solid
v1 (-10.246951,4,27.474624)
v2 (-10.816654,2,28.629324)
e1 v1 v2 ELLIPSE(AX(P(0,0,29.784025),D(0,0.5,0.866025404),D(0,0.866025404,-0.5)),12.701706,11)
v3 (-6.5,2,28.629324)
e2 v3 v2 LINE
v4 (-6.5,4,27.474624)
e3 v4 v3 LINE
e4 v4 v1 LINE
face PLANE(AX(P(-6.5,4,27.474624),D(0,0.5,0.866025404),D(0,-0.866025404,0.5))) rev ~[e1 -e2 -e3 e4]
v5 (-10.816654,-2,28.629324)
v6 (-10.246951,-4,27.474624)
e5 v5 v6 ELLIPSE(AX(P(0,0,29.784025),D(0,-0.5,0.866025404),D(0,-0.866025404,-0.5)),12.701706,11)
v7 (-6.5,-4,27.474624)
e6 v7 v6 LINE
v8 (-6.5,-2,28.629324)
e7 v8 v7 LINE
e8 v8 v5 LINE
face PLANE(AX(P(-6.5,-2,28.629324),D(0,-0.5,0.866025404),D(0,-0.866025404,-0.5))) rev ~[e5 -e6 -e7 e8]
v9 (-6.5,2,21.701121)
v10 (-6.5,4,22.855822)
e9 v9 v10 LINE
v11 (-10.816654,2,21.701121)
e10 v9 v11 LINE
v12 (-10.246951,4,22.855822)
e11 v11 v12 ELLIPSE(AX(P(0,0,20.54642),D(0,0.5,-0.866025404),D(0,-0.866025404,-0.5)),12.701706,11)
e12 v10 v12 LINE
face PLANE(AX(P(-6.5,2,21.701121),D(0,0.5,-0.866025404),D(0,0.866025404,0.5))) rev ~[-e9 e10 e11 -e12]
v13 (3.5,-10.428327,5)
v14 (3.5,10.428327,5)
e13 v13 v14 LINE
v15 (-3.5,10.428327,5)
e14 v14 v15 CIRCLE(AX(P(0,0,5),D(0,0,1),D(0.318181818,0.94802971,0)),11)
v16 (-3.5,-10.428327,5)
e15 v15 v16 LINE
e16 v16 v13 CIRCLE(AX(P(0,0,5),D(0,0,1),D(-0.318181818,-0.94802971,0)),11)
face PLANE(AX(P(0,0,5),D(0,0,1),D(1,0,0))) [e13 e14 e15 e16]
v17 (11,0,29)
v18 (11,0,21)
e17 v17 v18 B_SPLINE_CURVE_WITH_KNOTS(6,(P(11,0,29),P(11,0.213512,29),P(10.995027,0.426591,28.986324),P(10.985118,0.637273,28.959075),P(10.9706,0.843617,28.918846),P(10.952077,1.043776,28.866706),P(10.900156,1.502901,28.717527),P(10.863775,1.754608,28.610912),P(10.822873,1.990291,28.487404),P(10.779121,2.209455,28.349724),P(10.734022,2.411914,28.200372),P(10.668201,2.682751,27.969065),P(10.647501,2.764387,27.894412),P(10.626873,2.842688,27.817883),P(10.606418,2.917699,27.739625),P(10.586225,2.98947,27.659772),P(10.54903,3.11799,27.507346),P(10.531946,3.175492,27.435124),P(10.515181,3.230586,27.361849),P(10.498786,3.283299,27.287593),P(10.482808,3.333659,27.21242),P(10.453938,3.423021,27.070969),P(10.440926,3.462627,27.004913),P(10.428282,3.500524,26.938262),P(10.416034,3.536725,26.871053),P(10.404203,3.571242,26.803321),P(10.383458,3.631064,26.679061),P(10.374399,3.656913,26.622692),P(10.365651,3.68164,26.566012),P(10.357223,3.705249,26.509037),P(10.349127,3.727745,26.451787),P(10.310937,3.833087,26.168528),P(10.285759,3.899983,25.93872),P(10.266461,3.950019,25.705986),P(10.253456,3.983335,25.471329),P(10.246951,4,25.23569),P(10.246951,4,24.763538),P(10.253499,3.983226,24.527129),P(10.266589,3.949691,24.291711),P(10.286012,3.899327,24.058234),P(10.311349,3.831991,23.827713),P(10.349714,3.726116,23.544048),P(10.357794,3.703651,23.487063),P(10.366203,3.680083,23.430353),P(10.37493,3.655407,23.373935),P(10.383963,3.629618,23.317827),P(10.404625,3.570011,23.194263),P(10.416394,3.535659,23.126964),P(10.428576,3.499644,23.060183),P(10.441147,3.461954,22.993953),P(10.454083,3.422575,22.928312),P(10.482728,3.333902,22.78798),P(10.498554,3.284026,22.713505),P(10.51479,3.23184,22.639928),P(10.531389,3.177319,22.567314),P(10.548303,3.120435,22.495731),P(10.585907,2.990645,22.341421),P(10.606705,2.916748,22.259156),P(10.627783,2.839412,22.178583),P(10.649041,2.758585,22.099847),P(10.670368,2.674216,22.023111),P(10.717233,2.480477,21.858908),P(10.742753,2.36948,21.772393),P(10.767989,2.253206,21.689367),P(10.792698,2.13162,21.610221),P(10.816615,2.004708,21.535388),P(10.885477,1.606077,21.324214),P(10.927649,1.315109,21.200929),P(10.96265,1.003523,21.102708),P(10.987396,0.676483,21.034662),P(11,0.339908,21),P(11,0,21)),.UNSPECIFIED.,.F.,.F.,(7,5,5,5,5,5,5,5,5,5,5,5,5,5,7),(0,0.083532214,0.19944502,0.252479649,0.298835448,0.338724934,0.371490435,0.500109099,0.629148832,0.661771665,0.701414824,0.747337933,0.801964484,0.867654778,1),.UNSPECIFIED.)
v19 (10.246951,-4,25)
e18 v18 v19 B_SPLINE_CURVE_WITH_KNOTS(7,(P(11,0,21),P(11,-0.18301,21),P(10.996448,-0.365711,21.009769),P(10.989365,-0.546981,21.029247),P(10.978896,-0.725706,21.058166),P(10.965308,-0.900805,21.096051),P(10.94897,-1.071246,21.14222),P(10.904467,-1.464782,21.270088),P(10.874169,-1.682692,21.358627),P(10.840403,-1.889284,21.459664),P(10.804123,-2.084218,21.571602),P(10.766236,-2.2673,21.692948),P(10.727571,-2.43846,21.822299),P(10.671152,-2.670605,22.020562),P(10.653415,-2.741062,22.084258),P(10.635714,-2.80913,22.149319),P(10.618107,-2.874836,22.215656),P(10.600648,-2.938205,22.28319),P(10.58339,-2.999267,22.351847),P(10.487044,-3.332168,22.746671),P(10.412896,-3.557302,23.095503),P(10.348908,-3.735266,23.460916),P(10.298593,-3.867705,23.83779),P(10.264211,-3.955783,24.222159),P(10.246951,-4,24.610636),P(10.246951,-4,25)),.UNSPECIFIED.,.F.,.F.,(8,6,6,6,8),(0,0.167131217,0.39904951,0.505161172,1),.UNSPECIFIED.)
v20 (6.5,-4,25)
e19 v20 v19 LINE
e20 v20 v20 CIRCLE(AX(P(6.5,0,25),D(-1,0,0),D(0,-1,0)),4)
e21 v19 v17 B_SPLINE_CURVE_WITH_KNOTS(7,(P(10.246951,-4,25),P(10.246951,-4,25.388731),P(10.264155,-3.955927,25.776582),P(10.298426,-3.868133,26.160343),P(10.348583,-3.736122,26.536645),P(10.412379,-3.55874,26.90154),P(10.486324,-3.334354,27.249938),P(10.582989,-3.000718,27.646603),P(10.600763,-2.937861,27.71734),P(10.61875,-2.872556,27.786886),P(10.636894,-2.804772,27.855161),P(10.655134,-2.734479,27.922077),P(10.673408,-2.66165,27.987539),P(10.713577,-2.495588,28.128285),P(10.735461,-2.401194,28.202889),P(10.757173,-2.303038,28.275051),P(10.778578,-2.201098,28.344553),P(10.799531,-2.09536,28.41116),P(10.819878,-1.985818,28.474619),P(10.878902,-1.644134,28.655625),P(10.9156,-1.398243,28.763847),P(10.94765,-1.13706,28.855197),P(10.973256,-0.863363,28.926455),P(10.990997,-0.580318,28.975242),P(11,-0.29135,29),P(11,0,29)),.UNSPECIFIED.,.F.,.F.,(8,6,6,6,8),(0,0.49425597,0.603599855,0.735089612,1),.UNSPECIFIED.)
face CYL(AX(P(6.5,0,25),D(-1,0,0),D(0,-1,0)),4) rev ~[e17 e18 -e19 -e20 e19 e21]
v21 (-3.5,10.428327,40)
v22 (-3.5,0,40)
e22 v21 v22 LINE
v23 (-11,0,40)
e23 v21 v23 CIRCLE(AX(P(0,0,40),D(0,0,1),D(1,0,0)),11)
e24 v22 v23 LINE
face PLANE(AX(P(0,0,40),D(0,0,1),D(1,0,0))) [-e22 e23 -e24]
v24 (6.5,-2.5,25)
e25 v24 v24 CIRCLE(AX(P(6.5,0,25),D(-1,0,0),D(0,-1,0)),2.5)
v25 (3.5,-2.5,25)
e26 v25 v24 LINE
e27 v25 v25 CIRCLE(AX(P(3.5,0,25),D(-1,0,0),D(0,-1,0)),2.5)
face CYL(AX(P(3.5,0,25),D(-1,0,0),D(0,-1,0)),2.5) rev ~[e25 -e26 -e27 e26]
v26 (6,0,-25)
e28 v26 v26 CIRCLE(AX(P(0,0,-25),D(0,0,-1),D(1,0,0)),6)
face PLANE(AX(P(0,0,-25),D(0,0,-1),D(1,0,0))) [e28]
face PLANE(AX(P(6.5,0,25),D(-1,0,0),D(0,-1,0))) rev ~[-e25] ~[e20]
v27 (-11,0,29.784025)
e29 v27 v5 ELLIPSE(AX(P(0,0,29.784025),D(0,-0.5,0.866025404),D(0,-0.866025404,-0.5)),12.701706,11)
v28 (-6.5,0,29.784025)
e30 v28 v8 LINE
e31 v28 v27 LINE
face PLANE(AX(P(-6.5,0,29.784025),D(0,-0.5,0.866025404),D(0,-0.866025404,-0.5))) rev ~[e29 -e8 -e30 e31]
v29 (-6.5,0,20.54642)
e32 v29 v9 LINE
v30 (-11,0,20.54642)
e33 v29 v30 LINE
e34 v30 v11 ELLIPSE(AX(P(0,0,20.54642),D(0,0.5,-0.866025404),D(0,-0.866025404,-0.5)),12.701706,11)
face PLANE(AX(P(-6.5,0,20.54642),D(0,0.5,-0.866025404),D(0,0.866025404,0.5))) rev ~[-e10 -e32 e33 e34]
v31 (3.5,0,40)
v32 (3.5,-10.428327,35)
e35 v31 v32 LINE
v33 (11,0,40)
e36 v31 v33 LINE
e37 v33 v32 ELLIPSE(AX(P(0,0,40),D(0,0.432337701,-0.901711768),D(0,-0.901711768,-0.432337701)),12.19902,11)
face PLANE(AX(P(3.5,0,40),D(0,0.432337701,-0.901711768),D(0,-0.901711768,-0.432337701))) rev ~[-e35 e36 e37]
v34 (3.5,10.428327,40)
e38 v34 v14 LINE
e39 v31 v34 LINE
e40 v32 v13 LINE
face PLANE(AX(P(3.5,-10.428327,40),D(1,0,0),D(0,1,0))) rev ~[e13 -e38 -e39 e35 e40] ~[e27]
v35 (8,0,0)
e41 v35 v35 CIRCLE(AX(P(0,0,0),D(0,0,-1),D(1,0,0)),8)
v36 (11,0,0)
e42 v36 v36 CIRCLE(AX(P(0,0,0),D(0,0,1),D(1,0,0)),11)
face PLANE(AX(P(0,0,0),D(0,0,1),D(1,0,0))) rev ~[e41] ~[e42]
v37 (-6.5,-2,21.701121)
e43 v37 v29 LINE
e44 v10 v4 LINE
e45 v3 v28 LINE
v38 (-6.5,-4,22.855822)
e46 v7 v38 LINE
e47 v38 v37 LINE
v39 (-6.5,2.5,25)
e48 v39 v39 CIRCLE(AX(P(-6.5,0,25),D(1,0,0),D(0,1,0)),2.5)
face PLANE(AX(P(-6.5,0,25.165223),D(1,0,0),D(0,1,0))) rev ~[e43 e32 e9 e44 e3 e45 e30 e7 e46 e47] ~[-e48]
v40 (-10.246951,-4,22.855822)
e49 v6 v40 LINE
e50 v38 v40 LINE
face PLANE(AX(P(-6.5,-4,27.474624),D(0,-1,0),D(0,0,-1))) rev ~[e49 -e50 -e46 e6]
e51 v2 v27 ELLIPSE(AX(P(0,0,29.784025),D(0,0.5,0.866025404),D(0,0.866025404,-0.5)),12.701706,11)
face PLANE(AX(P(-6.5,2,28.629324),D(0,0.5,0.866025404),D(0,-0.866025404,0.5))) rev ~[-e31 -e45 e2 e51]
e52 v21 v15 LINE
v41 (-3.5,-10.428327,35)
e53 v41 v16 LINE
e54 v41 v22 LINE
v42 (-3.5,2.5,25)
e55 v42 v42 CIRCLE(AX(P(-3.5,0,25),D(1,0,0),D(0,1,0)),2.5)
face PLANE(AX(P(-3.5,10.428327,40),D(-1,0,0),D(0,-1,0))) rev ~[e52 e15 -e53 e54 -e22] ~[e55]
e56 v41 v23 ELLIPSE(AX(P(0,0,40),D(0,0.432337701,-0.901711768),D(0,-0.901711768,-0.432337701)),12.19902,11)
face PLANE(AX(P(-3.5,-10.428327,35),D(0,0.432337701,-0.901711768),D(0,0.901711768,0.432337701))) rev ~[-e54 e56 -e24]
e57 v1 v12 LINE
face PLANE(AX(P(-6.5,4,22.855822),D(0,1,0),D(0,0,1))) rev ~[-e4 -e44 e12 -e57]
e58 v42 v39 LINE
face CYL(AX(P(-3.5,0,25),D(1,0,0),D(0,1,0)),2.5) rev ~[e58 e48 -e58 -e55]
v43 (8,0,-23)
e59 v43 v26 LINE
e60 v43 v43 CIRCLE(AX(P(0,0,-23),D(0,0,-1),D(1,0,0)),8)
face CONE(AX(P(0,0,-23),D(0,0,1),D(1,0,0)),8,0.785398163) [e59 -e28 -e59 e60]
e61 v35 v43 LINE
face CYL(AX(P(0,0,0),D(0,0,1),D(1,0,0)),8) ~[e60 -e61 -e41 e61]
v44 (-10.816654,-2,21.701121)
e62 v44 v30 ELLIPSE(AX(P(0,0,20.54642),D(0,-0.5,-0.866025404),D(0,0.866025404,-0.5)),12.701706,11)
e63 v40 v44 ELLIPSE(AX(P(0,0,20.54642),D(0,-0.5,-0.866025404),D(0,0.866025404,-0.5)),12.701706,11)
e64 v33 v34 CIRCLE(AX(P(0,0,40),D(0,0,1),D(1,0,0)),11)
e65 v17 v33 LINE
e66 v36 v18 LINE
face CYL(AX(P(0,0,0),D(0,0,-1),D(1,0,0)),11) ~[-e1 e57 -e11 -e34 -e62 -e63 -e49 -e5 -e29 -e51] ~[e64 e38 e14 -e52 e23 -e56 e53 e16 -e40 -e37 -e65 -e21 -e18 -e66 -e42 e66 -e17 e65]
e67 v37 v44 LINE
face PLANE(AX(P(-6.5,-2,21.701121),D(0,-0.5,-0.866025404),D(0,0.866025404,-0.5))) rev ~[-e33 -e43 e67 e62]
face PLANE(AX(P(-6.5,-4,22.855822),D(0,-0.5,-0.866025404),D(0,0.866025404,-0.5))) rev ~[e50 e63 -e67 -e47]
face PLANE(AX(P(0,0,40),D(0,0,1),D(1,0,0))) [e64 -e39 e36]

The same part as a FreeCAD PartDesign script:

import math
import FreeCAD as App
import Part
import Sketcher

V = App.Vector
Q = App.Units.Quantity


def edges_at(feature, points):
    """Names of the edges that pass closest to the given points."""
    edges = feature.Shape.Edges
    near = lambda p: min(range(len(edges)), key=lambda i: edges[i].distToShape(Part.Vertex(*p))[0])
    return sorted({f"Edge{near(p) + 1}" for p in points})


def add_polygon(sketch, points):
    """Adds a closed chain of lines whose ends are joined by coincident constraints."""
    first, n = sketch.GeometryCount, len(points)
    for a, b in zip(points, points[1:] + points[:1]):
        sketch.addGeometry(Part.LineSegment(App.Vector(*a, 0), App.Vector(*b, 0)), False)
    for i in range(n):
        sketch.addConstraint(Sketcher.Constraint("Coincident", first + i, 2, first + (i + 1) % n, 1))

doc = App.newDocument("Part")
params = doc.addObject("Spreadsheet::Sheet", "Params")
for row, (alias, value) in enumerate([
    ("sketch1_diameter", "22 mm"),
    ("pad1_length", "40 mm"),
    ("sketch2_radius", "11 mm"),
    ("pocket1_length", "35 mm"),
    ("sketch3_height", "5 mm"),
    ("sketch4_height", "5 mm"),
    ("sketch5_diameter", "16 mm"),
    ("pad2_length", "25 mm"),
    ("sketch6_diameter", "5 mm"),
    ("sketch7_diameter", "5 mm"),
    ("chamfer_size", "2 mm"),
    ("sketch9_diameter", "8 mm"),
], start=1):
    params.set(f"A{row}", alias)
    params.set(f"B{row}", "=" + value)
    params.setAlias(f"B{row}", alias)

body = doc.addObject("PartDesign::Body", "Body")

# Sketch on XY plane
sketch1 = body.newObject("Sketcher::SketchObject", "Sketch")
sketch1.AttachmentSupport = (doc.getObject("XY_Plane"), [""])
sketch1.MapMode = "FlatFace"
sketch1.addGeometry(Part.Circle(V(0, 0, 0), V(0, 0, 1), 11), False)
sketch1.addConstraint(Sketcher.Constraint("Coincident", 0, 3, -1, 1))
sketch1.addConstraint(Sketcher.Constraint("Diameter", 0, Q("22 mm")))
sketch1.setExpression("Constraints[1]", "Params.sketch1_diameter")
pad1 = body.newObject("PartDesign::Pad", "Pad")
pad1.Profile = sketch1
pad1.setExpression("Length", "Params.pad1_length")

# Sketch on XY plane
sketch2 = body.newObject("Sketcher::SketchObject", "Sketch001")
sketch2.AttachmentSupport = (doc.getObject("XY_Plane"), [""])
sketch2.MapMode = "FlatFace"
sketch2.AttachmentOffset = App.Placement(V(0, 0, 40), App.Rotation())
sketch2.addGeometry(Part.ArcOfCircle(Part.Circle(V(0, 0, 0), V(0, 0, 1), 11), math.radians(-108.553005), math.radians(-71.446995)), False)
sketch2.addGeometry(Part.LineSegment(V(3.5, -10.428327, 0), V(3.5, 10.428327, 0)), False)
sketch2.addGeometry(Part.ArcOfCircle(Part.Circle(V(0, 0, 0), V(0, 0, 1), 11), math.radians(71.446995), math.radians(108.553005)), False)
sketch2.addGeometry(Part.LineSegment(V(-3.5, 10.428327, 0), V(-3.5, -10.428327, 0)), False)
sketch2.addConstraint(Sketcher.Constraint("Coincident", 0, 2, 1, 1))
sketch2.addConstraint(Sketcher.Constraint("Coincident", 1, 2, 2, 1))
sketch2.addConstraint(Sketcher.Constraint("Coincident", 2, 2, 3, 1))
sketch2.addConstraint(Sketcher.Constraint("Coincident", 3, 2, 0, 1))
sketch2.addConstraint(Sketcher.Constraint("Vertical", 1))
sketch2.addConstraint(Sketcher.Constraint("Vertical", 3))
sketch2.addConstraint(Sketcher.Constraint("Coincident", 0, 3, -1, 1))
sketch2.addConstraint(Sketcher.Constraint("Coincident", 2, 3, -1, 1))
sketch2.addConstraint(Sketcher.Constraint("Equal", 0, 2))
sketch2.addConstraint(Sketcher.Constraint("Horizontal", 1, 2, 2, 2))
sketch2.addConstraint(Sketcher.Constraint("Radius", 0, Q("11 mm")))
sketch2.addConstraint(Sketcher.Constraint("DistanceX", 2, 2, 1, 2, Q("7 mm")))
sketch2.setExpression("Constraints[10]", "Params.sketch2_radius")
pocket1 = body.newObject("PartDesign::Pocket", "Pocket")
pocket1.Profile = sketch2
pocket1.setExpression("Length", "Params.pocket1_length")

# Sketch on YZ plane
sketch3 = body.newObject("Sketcher::SketchObject", "Sketch002")
sketch3.AttachmentSupport = (doc.getObject("YZ_Plane"), [""])
sketch3.MapMode = "FlatFace"
sketch3.AttachmentOffset = App.Placement(V(0, 0, -3.5), App.Rotation())
add_polygon(sketch3, [(-10.428327, 35), (0, 40), (-10.428327, 40)])  # lines 0-2
sketch3.addConstraint(Sketcher.Constraint("Horizontal", 1))
sketch3.addConstraint(Sketcher.Constraint("Vertical", 2))
sketch3.addConstraint(Sketcher.Constraint("PointOnObject", 0, 2, -2))
sketch3.addConstraint(Sketcher.Constraint("DistanceY", 2, 2, 2, 1, Q("5 mm")))
sketch3.addConstraint(Sketcher.Constraint("DistanceY", -1, 1, 0, 2, Q("40 mm")))
sketch3.addConstraint(Sketcher.Constraint("DistanceX", 1, 2, 1, 1, Q("10.428327 mm")))
sketch3.setExpression("Constraints[6]", "Params.sketch3_height")
pocket2 = body.newObject("PartDesign::Pocket", "Pocket001")
pocket2.Profile = sketch3
pocket2.Type = "ThroughAll"

# Sketch on YZ plane
sketch4 = body.newObject("Sketcher::SketchObject", "Sketch003")
sketch4.AttachmentSupport = (doc.getObject("YZ_Plane"), [""])
sketch4.MapMode = "FlatFace"
sketch4.AttachmentOffset = App.Placement(V(0, 0, 3.5), App.Rotation())
add_polygon(sketch4, [(-10.428327, 40), (0, 40), (-10.428327, 35)])  # lines 0-2
sketch4.addConstraint(Sketcher.Constraint("Horizontal", 0))
sketch4.addConstraint(Sketcher.Constraint("Vertical", 2))
sketch4.addConstraint(Sketcher.Constraint("PointOnObject", 0, 2, -2))
sketch4.addConstraint(Sketcher.Constraint("DistanceY", 2, 1, 2, 2, Q("5 mm")))
sketch4.addConstraint(Sketcher.Constraint("DistanceY", -1, 1, 0, 2, Q("40 mm")))
sketch4.addConstraint(Sketcher.Constraint("DistanceX", 0, 1, 0, 2, Q("10.428327 mm")))
sketch4.setExpression("Constraints[6]", "Params.sketch4_height")
pocket3 = body.newObject("PartDesign::Pocket", "Pocket002")
pocket3.Profile = sketch4
pocket3.Type = "ThroughAll"
pocket3.Reversed = True

# Sketch on XY plane
sketch5 = body.newObject("Sketcher::SketchObject", "Sketch004")
sketch5.AttachmentSupport = (doc.getObject("XY_Plane"), [""])
sketch5.MapMode = "FlatFace"
sketch5.addGeometry(Part.Circle(V(0, 0, 0), V(0, 0, 1), 8), False)
sketch5.addConstraint(Sketcher.Constraint("Coincident", 0, 3, -1, 1))
sketch5.addConstraint(Sketcher.Constraint("Diameter", 0, Q("16 mm")))
sketch5.setExpression("Constraints[1]", "Params.sketch5_diameter")
pad2 = body.newObject("PartDesign::Pad", "Pad001")
pad2.Profile = sketch5
pad2.setExpression("Length", "Params.pad2_length")
pad2.Reversed = True

# Sketch on YZ plane
sketch6 = body.newObject("Sketcher::SketchObject", "Sketch005")
sketch6.AttachmentSupport = (doc.getObject("YZ_Plane"), [""])
sketch6.MapMode = "FlatFace"
sketch6.AttachmentOffset = App.Placement(V(0, 0, 3.5), App.Rotation())
sketch6.addGeometry(Part.Circle(V(0, 25, 0), V(0, 0, 1), 2.5), False)
sketch6.addConstraint(Sketcher.Constraint("PointOnObject", 0, 3, -2))
sketch6.addConstraint(Sketcher.Constraint("Diameter", 0, Q("5 mm")))
sketch6.addConstraint(Sketcher.Constraint("DistanceY", -1, 1, 0, 3, Q("25 mm")))
sketch6.setExpression("Constraints[1]", "Params.sketch6_diameter")
pocket4 = body.newObject("PartDesign::Pocket", "Pocket003")
pocket4.Profile = sketch6
pocket4.Type = "ThroughAll"
pocket4.Reversed = True

# Sketch on YZ plane
sketch7 = body.newObject("Sketcher::SketchObject", "Sketch006")
sketch7.AttachmentSupport = (doc.getObject("YZ_Plane"), [""])
sketch7.MapMode = "FlatFace"
sketch7.AttachmentOffset = App.Placement(V(0, 0, -3.5), App.Rotation())
sketch7.addGeometry(Part.Circle(V(0, 25, 0), V(0, 0, 1), 2.5), False)
sketch7.addConstraint(Sketcher.Constraint("PointOnObject", 0, 3, -2))
sketch7.addConstraint(Sketcher.Constraint("Diameter", 0, Q("5 mm")))
sketch7.addConstraint(Sketcher.Constraint("DistanceY", -1, 1, 0, 3, Q("25 mm")))
sketch7.setExpression("Constraints[1]", "Params.sketch7_diameter")
pocket5 = body.newObject("PartDesign::Pocket", "Pocket004")
pocket5.Profile = sketch7
pocket5.Type = "ThroughAll"
doc.recompute()

chamfer = body.newObject("PartDesign::Chamfer", "Chamfer")
chamfer.Base = (pocket5, edges_at(pocket5, [(-8, 0, -25)]))
chamfer.setExpression("Size", "Params.chamfer_size")

# Sketch on YZ plane
sketch8 = body.newObject("Sketcher::SketchObject", "Sketch007")
sketch8.AttachmentSupport = (doc.getObject("YZ_Plane"), [""])
sketch8.MapMode = "FlatFace"
sketch8.AttachmentOffset = App.Placement(V(0, 0, -6.5), App.Rotation())
add_polygon(sketch8, [(-2, 21.701121), (0, 20.54642), (2, 21.701121), (4, 22.855822), (4, 27.474624), (2, 28.629324), (0, 29.784025), (-2, 28.629324), (-4, 27.474624), (-4, 22.855822)])  # lines 0-9
sketch8.addConstraint(Sketcher.Constraint("Vertical", 3))
sketch8.addConstraint(Sketcher.Constraint("Vertical", 8))
sketch8.addConstraint(Sketcher.Constraint("Symmetric", 4, 2, 6, 2, -2))
sketch8.addConstraint(Sketcher.Constraint("Symmetric", 3, 2, 7, 2, -2))
sketch8.addConstraint(Sketcher.Constraint("Symmetric", 1, 2, 9, 2, -2))
sketch8.addConstraint(Sketcher.Constraint("PointOnObject", 0, 2, -2))
sketch8.addConstraint(Sketcher.Constraint("PointOnObject", 5, 2, -2))
sketch8.addConstraint(Sketcher.Constraint("Parallel", 1, 2))
sketch8.addConstraint(Sketcher.Constraint("Parallel", 0, 4))
sketch8.addConstraint(Sketcher.Constraint("Parallel", 4, 5))
sketch8.addConstraint(Sketcher.Constraint("Parallel", 5, 9))
sketch8.addConstraint(Sketcher.Constraint("Vertical", 1, 2, 4, 2))
sketch8.addConstraint(Sketcher.Constraint("Equal", 1, 2))
sketch8.addConstraint(Sketcher.Constraint("Angle", 0, Q("-30 deg")))
sketch8.addConstraint(Sketcher.Constraint("DistanceX", -1, 1, 1, 2, Q("2 mm")))
sketch8.addConstraint(Sketcher.Constraint("DistanceY", 3, 1, 3, 2, Q("4.618802 mm")))
sketch8.addConstraint(Sketcher.Constraint("DistanceY", -1, 1, 0, 2, Q("20.54642 mm")))
pocket6 = body.newObject("PartDesign::Pocket", "Pocket005")
pocket6.Profile = sketch8
pocket6.Type = "ThroughAll"

# Sketch on YZ plane
sketch9 = body.newObject("Sketcher::SketchObject", "Sketch008")
sketch9.AttachmentSupport = (doc.getObject("YZ_Plane"), [""])
sketch9.MapMode = "FlatFace"
sketch9.AttachmentOffset = App.Placement(V(0, 0, 6.5), App.Rotation())
sketch9.addGeometry(Part.Circle(V(0, 25, 0), V(0, 0, 1), 4), False)
sketch9.addConstraint(Sketcher.Constraint("PointOnObject", 0, 3, -2))
sketch9.addConstraint(Sketcher.Constraint("Diameter", 0, Q("8 mm")))
sketch9.addConstraint(Sketcher.Constraint("DistanceY", -1, 1, 0, 3, Q("25 mm")))
sketch9.setExpression("Constraints[1]", "Params.sketch9_diameter")
pocket7 = body.newObject("PartDesign::Pocket", "Pocket006")
pocket7.Profile = sketch9
pocket7.Type = "ThroughAll"
pocket7.Reversed = True

doc.recompute()
